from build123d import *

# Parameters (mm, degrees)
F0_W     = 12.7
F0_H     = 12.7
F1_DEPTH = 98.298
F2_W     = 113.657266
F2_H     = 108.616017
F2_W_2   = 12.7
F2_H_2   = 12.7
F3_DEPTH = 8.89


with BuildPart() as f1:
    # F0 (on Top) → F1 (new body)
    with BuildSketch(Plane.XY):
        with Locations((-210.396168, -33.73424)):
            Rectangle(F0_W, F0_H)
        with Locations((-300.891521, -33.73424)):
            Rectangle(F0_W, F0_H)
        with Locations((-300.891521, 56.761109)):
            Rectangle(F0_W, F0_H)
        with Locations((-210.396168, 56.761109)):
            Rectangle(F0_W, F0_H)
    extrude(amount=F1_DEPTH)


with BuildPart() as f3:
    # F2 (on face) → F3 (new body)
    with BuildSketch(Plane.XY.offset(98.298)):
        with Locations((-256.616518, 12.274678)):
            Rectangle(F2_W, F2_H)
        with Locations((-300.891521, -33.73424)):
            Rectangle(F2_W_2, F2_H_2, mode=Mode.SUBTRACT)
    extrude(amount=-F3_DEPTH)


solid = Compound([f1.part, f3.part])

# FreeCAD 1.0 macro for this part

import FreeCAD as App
import Part
import Sketcher
from FreeCAD import Vector
Q = App.Units.Quantity


def add_polygon(sketch, points):
    """Adds a closed chain of lines whose ends are joined by coincident constraints."""
    first, n = sketch.GeometryCount, len(points)
    for a, b in zip(points, points[1:] + points[:1]):
        sketch.addGeometry(Part.LineSegment(App.Vector(*a, 0), App.Vector(*b, 0)), False)
    for i in range(n):
        sketch.addConstraint(Sketcher.Constraint("Coincident", first + i, 2, first + (i + 1) % n, 1))

doc = App.newDocument("Part")
body = doc.addObject("PartDesign::Body", "Body")
body.AllowCompound = True

sketch1 = doc.addObject("Sketcher::SketchObject", "Sketch")
body.addObject(sketch1)
sketch1.AttachmentSupport = (doc.XY_Plane, [""])
sketch1.MapMode = "FlatFace"
add_polygon(sketch1, [(-217, -27), (-217, -40), (-204, -40), (-204, -27)])
add_polygon(sketch1, [(-307, -27), (-307, -40), (-295, -40), (-295, -27)])
add_polygon(sketch1, [(-307, 63), (-307, 50), (-295, 50), (-295, 63)])
add_polygon(sketch1, [(-217, 63), (-217, 50), (-204, 50), (-204, 63)])
sketch1.addConstraint([
    Sketcher.Constraint("Vertical", 0),
    Sketcher.Constraint("Horizontal", 1),
    Sketcher.Constraint("Vertical", 2),
    Sketcher.Constraint("Horizontal", 3),
    Sketcher.Constraint("Vertical", 4),
    Sketcher.Constraint("Horizontal", 5),
    Sketcher.Constraint("Vertical", 6),
    Sketcher.Constraint("Horizontal", 7),
    Sketcher.Constraint("Vertical", 8),
    Sketcher.Constraint("Horizontal", 9),
    Sketcher.Constraint("Vertical", 10),
    Sketcher.Constraint("Horizontal", 11),
    Sketcher.Constraint("Vertical", 12),
    Sketcher.Constraint("Horizontal", 13),
    Sketcher.Constraint("Vertical", 14),
    Sketcher.Constraint("Horizontal", 15),
    Sketcher.Constraint("Horizontal", 1, 2, 4, 2),
    Sketcher.Constraint("Horizontal", 3, 2, 6, 2),
    Sketcher.Constraint("Horizontal", 9, 2, 12, 2),
    Sketcher.Constraint("Horizontal", 11, 2, 14, 2),
    Sketcher.Constraint("Vertical", 7, 2, 8, 2),
    Sketcher.Constraint("Vertical", 6, 2, 9, 2),
    Sketcher.Constraint("Vertical", 3, 2, 12, 2),
    Sketcher.Constraint("Vertical", 2, 2, 13, 2),
    Sketcher.Constraint("Equal", 3, 5),
    Sketcher.Constraint("Equal", 15, 0),
    Sketcher.Constraint("Equal", 6, 8),
    Sketcher.Constraint("DistanceX", 1, 1, 1, 2, Q("0.5 in")),
    Sketcher.Constraint("DistanceX", 0, 2, -1, 1, Q("216.746168 mm")),
    Sketcher.Constraint("DistanceY", 0, 2, -1, 1, Q("40.08424 mm")),
    Sketcher.Constraint("DistanceX", 4, 2, -1, 1, Q("307.241521 mm")),
    Sketcher.Constraint("DistanceY", -1, 1, 8, 2, Q("50.411109 mm")),
])
pad1 = doc.addObject("PartDesign::Pad", "Pad")
body.addObject(pad1)
pad1.Profile = sketch1
pad1.Length = Q("3.87 in")
body2 = doc.addObject("PartDesign::Body", "Body001")

sketch2 = doc.addObject("Sketcher::SketchObject", "Sketch001")
body2.addObject(sketch2)
sketch2.AttachmentSupport = (doc.getObject("XY_Plane001"), [""])
sketch2.MapMode = "FlatFace"
sketch2.AttachmentOffset = App.Placement(Vector(0, 0, 3.87 * 25.4), App.Rotation())
add_polygon(sketch2, [(-313, 67), (-313, -42), (-200, -42), (-200, 67)])
add_polygon(sketch2, [(-295, -40), (-307, -40), (-307, -27), (-295, -27)])
sketch2.addConstraint([
    Sketcher.Constraint("Vertical", 0),
    Sketcher.Constraint("Horizontal", 1),
    Sketcher.Constraint("Vertical", 2),
    Sketcher.Constraint("Horizontal", 3),
    Sketcher.Constraint("Horizontal", 4),
    Sketcher.Constraint("Vertical", 5),
    Sketcher.Constraint("Horizontal", 6),
    Sketcher.Constraint("Vertical", 7),
    Sketcher.Constraint("Equal", 6, 5),
    Sketcher.Constraint("DistanceX", 4, 2, 4, 1, Q("0.5 in")),
    Sketcher.Constraint("DistanceX", 1, 1, 1, 2, Q("113.657266 mm")),
    Sketcher.Constraint("DistanceY", 0, 2, 0, 1, Q("108.616017 mm")),
    Sketcher.Constraint("DistanceX", 0, 2, -1, 1, Q("313.445151 mm")),
    Sketcher.Constraint("DistanceY", 0, 2, -1, 1, Q("42.03333 mm")),
    Sketcher.Constraint("DistanceX", 4, 2, -1, 1, Q("307.241521 mm")),
    Sketcher.Constraint("DistanceY", 4, 2, -1, 1, Q("40.08424 mm")),
])
pad2 = doc.addObject("PartDesign::Pad", "Pad001")
body2.addObject(pad2)
pad2.Profile = sketch2
pad2.Length = Q("0.35 in")
pad2.Reversed = True

doc.recompute()
